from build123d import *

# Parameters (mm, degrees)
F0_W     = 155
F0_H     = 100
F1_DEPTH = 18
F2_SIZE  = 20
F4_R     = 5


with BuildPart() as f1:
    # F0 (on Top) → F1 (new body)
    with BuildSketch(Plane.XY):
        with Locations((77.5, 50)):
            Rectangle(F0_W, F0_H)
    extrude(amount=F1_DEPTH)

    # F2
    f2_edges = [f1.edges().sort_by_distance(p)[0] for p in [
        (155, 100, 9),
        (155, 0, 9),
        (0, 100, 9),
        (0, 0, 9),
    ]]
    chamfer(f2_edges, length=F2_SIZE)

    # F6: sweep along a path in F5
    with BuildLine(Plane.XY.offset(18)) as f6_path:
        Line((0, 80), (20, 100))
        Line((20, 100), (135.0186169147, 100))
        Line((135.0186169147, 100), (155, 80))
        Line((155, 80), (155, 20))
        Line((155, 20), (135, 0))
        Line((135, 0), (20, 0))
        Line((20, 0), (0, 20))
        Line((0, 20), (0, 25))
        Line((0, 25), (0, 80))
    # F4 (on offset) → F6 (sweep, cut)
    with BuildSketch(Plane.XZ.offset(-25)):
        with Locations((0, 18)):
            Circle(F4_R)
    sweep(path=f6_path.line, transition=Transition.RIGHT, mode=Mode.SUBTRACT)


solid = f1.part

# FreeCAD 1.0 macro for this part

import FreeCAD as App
import Part
import Sketcher
Q = App.Units.Quantity


def edges_at(feature, points):
    """Names of the edges that pass closest to the given points."""
    edges = feature.Shape.Edges
    near = lambda p: min(range(len(edges)), key=lambda i: edges[i].distToShape(Part.Vertex(*p))[0])
    return sorted({f"Edge{near(p) + 1}" for p in points})

doc = App.newDocument("Part")
params = doc.addObject("Spreadsheet::Sheet", "Params")
for row, (alias, value) in enumerate([
    ("sketch1_width", "155 mm"),
    ("sketch1_height", "100 mm"),
    ("pad1_length", "18 mm"),
    ("chamfer_size", "20 mm"),
    ("sketch2_diameter", "10 mm"),
    ("sketch3_width", "115 mm"),
    ("sketch3_height", "60 mm"),
], start=1):
    params.set(f"A{row}", alias)
    params.set(f"B{row}", "=" + value)
    params.setAlias(f"B{row}", alias)

body = doc.addObject("PartDesign::Body", "Body")

sketch1 = body.newObject("Sketcher::SketchObject", "Sketch")
sketch1.AttachmentSupport = (doc.getObject("XY_Plane"), [""])
sketch1.MapMode = "FlatFace"
sketch1.addGeometry(Part.LineSegment(App.Vector(0, 100, 0), App.Vector(0, 0, 0)), False)
sketch1.addGeometry(Part.LineSegment(App.Vector(0, 0, 0), App.Vector(155, 0, 0)), False)
sketch1.addGeometry(Part.LineSegment(App.Vector(155, 0, 0), App.Vector(155, 100, 0)), False)
sketch1.addGeometry(Part.LineSegment(App.Vector(155, 100, 0), App.Vector(0, 100, 0)), False)
sketch1.addConstraint(Sketcher.Constraint("Coincident", 0, 2, 1, 1))
sketch1.addConstraint(Sketcher.Constraint("Coincident", 1, 2, 2, 1))
sketch1.addConstraint(Sketcher.Constraint("Coincident", 2, 2, 3, 1))
sketch1.addConstraint(Sketcher.Constraint("Coincident", 3, 2, 0, 1))
sketch1.addConstraint(Sketcher.Constraint("Vertical", 0))
sketch1.addConstraint(Sketcher.Constraint("Horizontal", 1))
sketch1.addConstraint(Sketcher.Constraint("Vertical", 2))
sketch1.addConstraint(Sketcher.Constraint("Horizontal", 3))
sketch1.addConstraint(Sketcher.Constraint("Coincident", 0, 2, -1, 1))
sketch1.addConstraint(Sketcher.Constraint("DistanceX", 1, 1, 1, 2, Q("155 mm")))
sketch1.addConstraint(Sketcher.Constraint("DistanceY", 0, 2, 0, 1, Q("100 mm")))
sketch1.setExpression("Constraints[9]", "Params.sketch1_width")
sketch1.setExpression("Constraints[10]", "Params.sketch1_height")
pad1 = body.newObject("PartDesign::Pad", "Pad")
pad1.Profile = sketch1
pad1.setExpression("Length", "Params.pad1_length")
doc.recompute()

chamfer = body.newObject("PartDesign::Chamfer", "Chamfer")
chamfer.Base = (pad1, edges_at(pad1, [
    (155, 100, 9),
    (155, 0, 9),
    (0, 100, 9),
    (0, 0, 9),
]))
chamfer.setExpression("Size", "Params.chamfer_size")

sketch2 = body.newObject("Sketcher::SketchObject", "Sketch001")
sketch2.AttachmentSupport = (doc.getObject("XZ_Plane"), [""])
sketch2.MapMode = "FlatFace"
sketch2.AttachmentOffset = App.Placement(App.Vector(0, 0, -25), App.Rotation())
sketch2.addGeometry(Part.Circle(App.Vector(0, 18, 0), App.Vector(0, 0, 1), 5), False)
sketch2.addConstraint(Sketcher.Constraint("PointOnObject", 0, 3, -2))
sketch2.addConstraint(Sketcher.Constraint("Diameter", 0, Q("10 mm")))
sketch2.addConstraint(Sketcher.Constraint("DistanceY", -1, 1, 0, 3, Q("18 mm")))
sketch2.setExpression("Constraints[1]", "Params.sketch2_diameter")

sketch3 = body.newObject("Sketcher::SketchObject", "Sketch002")
sketch3.AttachmentSupport = (doc.getObject("XY_Plane"), [""])
sketch3.MapMode = "FlatFace"
sketch3.AttachmentOffset = App.Placement(App.Vector(0, 0, 18), App.Rotation())
sketch3.addGeometry(Part.LineSegment(App.Vector(0, 80, 0), App.Vector(20, 100, 0)), False)
sketch3.addGeometry(Part.LineSegment(App.Vector(20, 100, 0), App.Vector(135.018617, 100, 0)), False)
sketch3.addGeometry(Part.LineSegment(App.Vector(135.018617, 100, 0), App.Vector(155, 80, 0)), False)
sketch3.addGeometry(Part.LineSegment(App.Vector(155, 80, 0), App.Vector(155, 20, 0)), False)
sketch3.addGeometry(Part.LineSegment(App.Vector(155, 20, 0), App.Vector(135, 0, 0)), False)
sketch3.addGeometry(Part.LineSegment(App.Vector(135, 0, 0), App.Vector(20, 0, 0)), False)
sketch3.addGeometry(Part.LineSegment(App.Vector(20, 0, 0), App.Vector(0, 20, 0)), False)
sketch3.addGeometry(Part.LineSegment(App.Vector(0, 20, 0), App.Vector(0, 80, 0)), False)
sketch3.addConstraint(Sketcher.Constraint("Coincident", 0, 2, 1, 1))
sketch3.addConstraint(Sketcher.Constraint("Coincident", 1, 2, 2, 1))
sketch3.addConstraint(Sketcher.Constraint("Coincident", 2, 2, 3, 1))
sketch3.addConstraint(Sketcher.Constraint("Coincident", 3, 2, 4, 1))
sketch3.addConstraint(Sketcher.Constraint("Coincident", 4, 2, 5, 1))
sketch3.addConstraint(Sketcher.Constraint("Coincident", 5, 2, 6, 1))
sketch3.addConstraint(Sketcher.Constraint("Coincident", 6, 2, 7, 1))
sketch3.addConstraint(Sketcher.Constraint("Coincident", 7, 2, 0, 1))
sketch3.addConstraint(Sketcher.Constraint("Horizontal", 1))
sketch3.addConstraint(Sketcher.Constraint("Vertical", 3))
sketch3.addConstraint(Sketcher.Constraint("Horizontal", 5))
sketch3.addConstraint(Sketcher.Constraint("Vertical", 7))
sketch3.addConstraint(Sketcher.Constraint("PointOnObject", 4, 2, -1))
sketch3.addConstraint(Sketcher.Constraint("PointOnObject", 6, 2, -2))
sketch3.addConstraint(Sketcher.Constraint("Parallel", 0, 4))
sketch3.addConstraint(Sketcher.Constraint("Perpendicular", 4, 6))
sketch3.addConstraint(Sketcher.Constraint("Horizontal", 3, 2, 6, 2))
sketch3.addConstraint(Sketcher.Constraint("Horizontal", 2, 2, 7, 2))
sketch3.addConstraint(Sketcher.Constraint("Vertical", 0, 2, 5, 2))
sketch3.addConstraint(Sketcher.Constraint("Equal", 0, 4))
sketch3.addConstraint(Sketcher.Constraint("DistanceX", 5, 2, 5, 1, Q("115 mm")))
sketch3.addConstraint(Sketcher.Constraint("DistanceY", 3, 2, 3, 1, Q("60 mm")))
sketch3.addConstraint(Sketcher.Constraint("DistanceX", -1, 1, 0, 2, Q("20 mm")))
sketch3.addConstraint(Sketcher.Constraint("Distance", 2, Q("28.27111 mm")))
sketch3.setExpression("Constraints[20]", "Params.sketch3_width")
sketch3.setExpression("Constraints[21]", "Params.sketch3_height")
doc.recompute()

subtractivepipe = body.newObject("PartDesign::SubtractivePipe", "SubtractivePipe")
subtractivepipe.Profile = sketch2
subtractivepipe.Spine = (sketch3, ["Edge1", "Edge2", "Edge3", "Edge4", "Edge5", "Edge6", "Edge7", "Edge8"])
subtractivepipe.Transition = "Right corner"

doc.recompute()
